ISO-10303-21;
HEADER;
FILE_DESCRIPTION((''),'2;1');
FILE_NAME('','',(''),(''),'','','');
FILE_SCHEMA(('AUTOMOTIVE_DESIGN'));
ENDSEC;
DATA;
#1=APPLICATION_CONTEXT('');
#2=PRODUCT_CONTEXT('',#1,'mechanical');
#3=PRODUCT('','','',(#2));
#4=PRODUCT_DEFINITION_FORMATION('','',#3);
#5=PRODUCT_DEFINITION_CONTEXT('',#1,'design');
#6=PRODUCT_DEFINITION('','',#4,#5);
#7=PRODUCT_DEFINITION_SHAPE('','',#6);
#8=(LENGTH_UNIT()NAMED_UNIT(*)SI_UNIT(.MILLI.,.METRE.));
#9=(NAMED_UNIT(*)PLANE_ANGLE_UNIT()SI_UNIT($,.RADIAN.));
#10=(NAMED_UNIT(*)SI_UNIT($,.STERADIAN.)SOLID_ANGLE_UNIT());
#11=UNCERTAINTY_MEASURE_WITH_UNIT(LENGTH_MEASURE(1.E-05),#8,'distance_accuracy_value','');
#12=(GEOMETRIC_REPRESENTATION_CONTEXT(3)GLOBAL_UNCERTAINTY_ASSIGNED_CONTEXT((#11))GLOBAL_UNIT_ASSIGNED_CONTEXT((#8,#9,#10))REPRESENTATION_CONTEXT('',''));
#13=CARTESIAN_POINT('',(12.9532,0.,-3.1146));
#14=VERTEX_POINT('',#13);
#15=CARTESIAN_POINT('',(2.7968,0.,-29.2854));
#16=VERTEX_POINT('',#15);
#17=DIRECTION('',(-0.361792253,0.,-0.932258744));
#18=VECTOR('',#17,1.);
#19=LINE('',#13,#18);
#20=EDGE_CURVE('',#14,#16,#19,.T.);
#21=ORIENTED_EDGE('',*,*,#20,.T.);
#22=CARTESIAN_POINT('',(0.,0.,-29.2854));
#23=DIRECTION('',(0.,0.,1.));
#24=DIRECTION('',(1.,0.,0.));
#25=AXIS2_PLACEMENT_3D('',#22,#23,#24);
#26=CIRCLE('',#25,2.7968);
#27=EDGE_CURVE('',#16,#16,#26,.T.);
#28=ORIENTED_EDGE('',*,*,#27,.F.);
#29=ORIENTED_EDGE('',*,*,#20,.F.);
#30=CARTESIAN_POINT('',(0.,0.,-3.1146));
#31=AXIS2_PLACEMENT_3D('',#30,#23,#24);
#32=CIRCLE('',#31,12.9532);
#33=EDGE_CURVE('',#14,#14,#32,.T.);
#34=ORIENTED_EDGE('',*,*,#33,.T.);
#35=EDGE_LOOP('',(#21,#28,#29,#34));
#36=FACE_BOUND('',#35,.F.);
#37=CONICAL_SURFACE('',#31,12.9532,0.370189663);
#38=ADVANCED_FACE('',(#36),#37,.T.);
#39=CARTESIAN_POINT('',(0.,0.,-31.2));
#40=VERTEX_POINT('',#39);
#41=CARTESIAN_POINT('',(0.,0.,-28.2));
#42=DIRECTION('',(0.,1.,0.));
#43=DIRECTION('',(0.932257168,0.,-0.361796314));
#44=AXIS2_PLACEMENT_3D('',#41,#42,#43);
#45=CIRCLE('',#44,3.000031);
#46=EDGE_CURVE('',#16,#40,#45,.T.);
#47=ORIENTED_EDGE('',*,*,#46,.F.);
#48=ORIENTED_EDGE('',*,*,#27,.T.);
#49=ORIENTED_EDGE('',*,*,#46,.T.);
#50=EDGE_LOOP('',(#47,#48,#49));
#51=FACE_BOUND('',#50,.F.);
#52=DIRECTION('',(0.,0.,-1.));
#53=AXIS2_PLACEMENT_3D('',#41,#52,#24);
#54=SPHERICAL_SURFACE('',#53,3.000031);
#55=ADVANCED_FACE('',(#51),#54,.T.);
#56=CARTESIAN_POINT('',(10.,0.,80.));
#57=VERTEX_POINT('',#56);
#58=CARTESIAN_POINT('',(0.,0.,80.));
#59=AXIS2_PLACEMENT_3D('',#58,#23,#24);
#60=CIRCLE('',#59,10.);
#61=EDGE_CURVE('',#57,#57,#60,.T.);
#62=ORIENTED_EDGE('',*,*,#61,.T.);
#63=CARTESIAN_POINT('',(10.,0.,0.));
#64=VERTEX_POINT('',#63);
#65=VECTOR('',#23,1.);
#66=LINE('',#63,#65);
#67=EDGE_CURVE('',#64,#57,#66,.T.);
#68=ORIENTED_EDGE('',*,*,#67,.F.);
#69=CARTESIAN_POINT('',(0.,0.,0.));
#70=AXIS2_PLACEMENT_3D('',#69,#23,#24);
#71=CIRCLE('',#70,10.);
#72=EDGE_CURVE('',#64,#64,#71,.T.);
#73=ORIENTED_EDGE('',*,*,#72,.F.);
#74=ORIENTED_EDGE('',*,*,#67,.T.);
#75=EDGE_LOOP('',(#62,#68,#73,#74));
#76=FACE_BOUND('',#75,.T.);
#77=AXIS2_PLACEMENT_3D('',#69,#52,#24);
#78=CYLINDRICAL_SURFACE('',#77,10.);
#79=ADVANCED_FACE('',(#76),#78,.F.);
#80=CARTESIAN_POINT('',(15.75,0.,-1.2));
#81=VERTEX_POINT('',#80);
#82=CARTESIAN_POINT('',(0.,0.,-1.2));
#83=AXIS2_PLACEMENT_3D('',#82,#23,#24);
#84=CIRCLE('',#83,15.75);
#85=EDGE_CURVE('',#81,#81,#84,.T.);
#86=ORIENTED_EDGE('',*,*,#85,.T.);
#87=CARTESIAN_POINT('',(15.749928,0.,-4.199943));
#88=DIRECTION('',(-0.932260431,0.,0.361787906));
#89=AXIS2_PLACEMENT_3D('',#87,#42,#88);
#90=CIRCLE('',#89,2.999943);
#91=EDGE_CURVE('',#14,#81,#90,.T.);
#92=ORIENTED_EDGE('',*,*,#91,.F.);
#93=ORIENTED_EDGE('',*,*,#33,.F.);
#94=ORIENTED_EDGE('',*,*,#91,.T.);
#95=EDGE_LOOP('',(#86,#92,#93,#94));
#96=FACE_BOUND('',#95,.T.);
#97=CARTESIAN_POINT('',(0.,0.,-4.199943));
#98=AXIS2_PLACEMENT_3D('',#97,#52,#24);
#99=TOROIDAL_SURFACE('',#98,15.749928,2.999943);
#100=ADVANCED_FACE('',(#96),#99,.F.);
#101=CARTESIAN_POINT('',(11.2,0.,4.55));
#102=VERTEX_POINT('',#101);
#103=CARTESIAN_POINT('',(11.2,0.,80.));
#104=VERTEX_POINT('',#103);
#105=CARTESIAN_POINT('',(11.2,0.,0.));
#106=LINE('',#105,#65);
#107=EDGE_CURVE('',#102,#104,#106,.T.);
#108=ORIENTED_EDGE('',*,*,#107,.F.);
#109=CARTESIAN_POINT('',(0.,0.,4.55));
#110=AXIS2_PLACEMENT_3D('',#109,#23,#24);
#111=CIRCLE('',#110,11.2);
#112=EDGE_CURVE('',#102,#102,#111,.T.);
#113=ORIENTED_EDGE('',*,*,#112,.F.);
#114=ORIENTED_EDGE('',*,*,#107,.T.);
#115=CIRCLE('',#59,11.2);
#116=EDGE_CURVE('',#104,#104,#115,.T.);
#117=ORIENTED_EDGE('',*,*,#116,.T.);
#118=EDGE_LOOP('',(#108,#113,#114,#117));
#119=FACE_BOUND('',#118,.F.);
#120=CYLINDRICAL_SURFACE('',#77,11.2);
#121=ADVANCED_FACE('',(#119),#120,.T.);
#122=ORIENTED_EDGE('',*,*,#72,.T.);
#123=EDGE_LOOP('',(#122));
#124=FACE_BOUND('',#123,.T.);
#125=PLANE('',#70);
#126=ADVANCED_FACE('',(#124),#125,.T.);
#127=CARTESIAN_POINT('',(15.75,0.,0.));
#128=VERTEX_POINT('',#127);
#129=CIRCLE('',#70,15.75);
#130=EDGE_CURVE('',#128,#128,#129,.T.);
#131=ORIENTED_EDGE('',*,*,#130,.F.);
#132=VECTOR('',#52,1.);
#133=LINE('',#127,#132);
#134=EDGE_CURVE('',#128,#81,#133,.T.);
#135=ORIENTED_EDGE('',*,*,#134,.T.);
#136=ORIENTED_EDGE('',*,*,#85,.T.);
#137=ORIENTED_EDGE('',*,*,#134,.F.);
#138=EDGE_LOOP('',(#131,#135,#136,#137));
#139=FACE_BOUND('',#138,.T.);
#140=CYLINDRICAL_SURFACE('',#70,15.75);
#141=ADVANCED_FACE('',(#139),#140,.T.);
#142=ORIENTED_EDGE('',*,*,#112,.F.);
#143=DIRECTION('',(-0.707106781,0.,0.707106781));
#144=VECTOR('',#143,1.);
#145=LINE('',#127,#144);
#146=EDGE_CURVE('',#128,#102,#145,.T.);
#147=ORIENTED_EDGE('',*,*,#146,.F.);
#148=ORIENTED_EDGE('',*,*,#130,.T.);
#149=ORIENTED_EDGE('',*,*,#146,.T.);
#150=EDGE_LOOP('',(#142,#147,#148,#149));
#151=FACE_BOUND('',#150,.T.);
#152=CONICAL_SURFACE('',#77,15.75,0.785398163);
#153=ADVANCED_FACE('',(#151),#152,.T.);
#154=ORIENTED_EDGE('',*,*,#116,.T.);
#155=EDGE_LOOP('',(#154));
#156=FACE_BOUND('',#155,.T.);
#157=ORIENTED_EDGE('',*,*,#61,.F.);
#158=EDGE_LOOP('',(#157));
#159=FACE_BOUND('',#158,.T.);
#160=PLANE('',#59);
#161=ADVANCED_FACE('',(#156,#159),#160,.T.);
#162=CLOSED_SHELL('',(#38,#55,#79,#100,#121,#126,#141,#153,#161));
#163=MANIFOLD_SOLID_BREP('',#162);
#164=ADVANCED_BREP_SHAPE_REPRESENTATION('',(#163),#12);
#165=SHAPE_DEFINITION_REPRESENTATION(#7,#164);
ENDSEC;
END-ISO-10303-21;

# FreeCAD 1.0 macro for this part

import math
import FreeCAD as App
import Part
import Sketcher
Q = App.Units.Quantity

doc = App.newDocument("Part")
body = doc.addObject("PartDesign::Body", "Body")

# Sketch on XY plane
sketch1 = body.newObject("Sketcher::SketchObject", "Sketch")
sketch1.AttachmentSupport = (doc.getObject("XY_Plane"), [""])
sketch1.MapMode = "FlatFace"
sketch1.addGeometry(Part.Circle(App.Vector(0, 0, 0), App.Vector(0, 0, 1), 15.75), False)
sketch1.addConstraint(Sketcher.Constraint("Coincident", 0, 3, -1, 1))
sketch1.addConstraint(Sketcher.Constraint("Diameter", 0, Q("31.5 mm")))
pad1 = body.newObject("PartDesign::Pad", "Pad")
pad1.Profile = sketch1
pad1.Length = 31.2
pad1.Reversed = True

# Sketch on XY plane
sketch2 = body.newObject("Sketcher::SketchObject", "Sketch001")
sketch2.AttachmentSupport = (doc.getObject("XY_Plane"), [""])
sketch2.MapMode = "FlatFace"
sketch2.addGeometry(Part.Circle(App.Vector(0, 0, 0), App.Vector(0, 0, 1), 11.2), False)
sketch2.addGeometry(Part.Circle(App.Vector(0, 0, 0), App.Vector(0, 0, 1), 10), False)
sketch2.addConstraint(Sketcher.Constraint("Coincident", 0, 3, -1, 1))
sketch2.addConstraint(Sketcher.Constraint("Coincident", 1, 3, -1, 1))
sketch2.addConstraint(Sketcher.Constraint("Diameter", 1, Q("20 mm")))
sketch2.addConstraint(Sketcher.Constraint("Diameter", 0, Q("22.4 mm")))
pad2 = body.newObject("PartDesign::Pad", "Pad001")
pad2.Profile = sketch2
pad2.Length = 80

# Sketch on XZ plane
sketch3 = body.newObject("Sketcher::SketchObject", "Sketch002")
sketch3.AttachmentSupport = (doc.getObject("XZ_Plane"), [""])
sketch3.MapMode = "FlatFace"
sketch3.addGeometry(Part.LineSegment(App.Vector(15.75, -1.2, 0), App.Vector(15.75, -31.2, 0)), False)
sketch3.addGeometry(Part.LineSegment(App.Vector(15.75, -31.2, 0), App.Vector(0, -31.2, 0)), False)
sketch3.addGeometry(Part.ArcOfCircle(Part.Circle(App.Vector(0, -28.2, 0), App.Vector(0, 0, 1), 3.000031), math.radians(-90), math.radians(-21.210555)), False)
sketch3.addGeometry(Part.LineSegment(App.Vector(2.7968, -29.2854, 0), App.Vector(12.9532, -3.1146, 0)), False)
sketch3.addGeometry(Part.ArcOfCircle(Part.Circle(App.Vector(15.75, -4.2, 0), App.Vector(0, 0, 1), 3.000031), math.radians(90), math.radians(158.789445)), False)
sketch3.addConstraint(Sketcher.Constraint("Coincident", 0, 2, 1, 1))
sketch3.addConstraint(Sketcher.Constraint("Tangent", 1, 2, 2, 1))
sketch3.addConstraint(Sketcher.Constraint("Tangent", 2, 2, 3, 1))
sketch3.addConstraint(Sketcher.Constraint("Tangent", 3, 2, 4, 2))
sketch3.addConstraint(Sketcher.Constraint("Coincident", 4, 1, 0, 1))
sketch3.addConstraint(Sketcher.Constraint("Vertical", 0))
sketch3.addConstraint(Sketcher.Constraint("Horizontal", 1))
sketch3.addConstraint(Sketcher.Constraint("Equal", 2, 4))
sketch3.addConstraint(Sketcher.Constraint("PointOnObject", 2, 3, -2))
sketch3.addConstraint(Sketcher.Constraint("Vertical", 4, 3, 0, 2))
sketch3.addConstraint(Sketcher.Constraint("Radius", 2, Q("3 mm")))
sketch3.addConstraint(Sketcher.Constraint("DistanceY", 4, 1, -1, 1, Q("1.2 mm")))
sketch3.addConstraint(Sketcher.Constraint("DistanceY", 0, 2, 0, 1, Q("30 mm")))
sketch3.addConstraint(Sketcher.Constraint("DistanceX", 1, 2, 1, 1, Q("15.75 mm")))
groove = body.newObject("PartDesign::Groove", "Groove")
groove.Profile = sketch3
groove.ReferenceAxis = (sketch3, ["V_Axis"])
groove.Angle = 360

# Sketch on XZ plane
sketch4 = body.newObject("Sketcher::SketchObject", "Sketch003")
sketch4.AttachmentSupport = (doc.getObject("XZ_Plane"), [""])
sketch4.MapMode = "FlatFace"
sketch4.addGeometry(Part.LineSegment(App.Vector(15.75, 0, 0), App.Vector(11.2, 0, 0)), False)
sketch4.addGeometry(Part.LineSegment(App.Vector(11.2, 0, 0), App.Vector(11.2, 4.55, 0)), False)
sketch4.addGeometry(Part.LineSegment(App.Vector(11.2, 4.55, 0), App.Vector(15.75, 0, 0)), False)
sketch4.addGeometry(Part.ArcOfCircle(Part.Circle(App.Vector(0, -28.2, 0), App.Vector(0, 0, 1), 3.000031), math.radians(-90), math.radians(-21.210555)), False)
sketch4.addGeometry(Part.LineSegment(App.Vector(0, -31.2, 0), App.Vector(0, -1.2, 0)), False)
sketch4.addGeometry(Part.LineSegment(App.Vector(0, -1.2, 0), App.Vector(15.75, -1.2, 0)), False)
sketch4.addGeometry(Part.ArcOfCircle(Part.Circle(App.Vector(15.75, -4.2, 0), App.Vector(0, 0, 1), 3.000031), math.radians(90), math.radians(158.789445)), False)
sketch4.addGeometry(Part.LineSegment(App.Vector(12.9532, -3.1146, 0), App.Vector(2.7968, -29.2854, 0)), False)
sketch4.addConstraint(Sketcher.Constraint("Coincident", 0, 2, 1, 1))
sketch4.addConstraint(Sketcher.Constraint("Coincident", 1, 2, 2, 1))
sketch4.addConstraint(Sketcher.Constraint("Coincident", 2, 2, 0, 1))
sketch4.addConstraint(Sketcher.Constraint("Coincident", 3, 1, 4, 1))
sketch4.addConstraint(Sketcher.Constraint("Coincident", 4, 2, 5, 1))
sketch4.addConstraint(Sketcher.Constraint("Tangent", 5, 2, 6, 1))
sketch4.addConstraint(Sketcher.Constraint("Tangent", 6, 2, 7, 1))
sketch4.addConstraint(Sketcher.Constraint("Tangent", 7, 2, 3, 2))
sketch4.addConstraint(Sketcher.Constraint("Horizontal", 0))
sketch4.addConstraint(Sketcher.Constraint("Vertical", 1))
sketch4.addConstraint(Sketcher.Constraint("Vertical", 4))
sketch4.addConstraint(Sketcher.Constraint("Horizontal", 5))
sketch4.addConstraint(Sketcher.Constraint("Equal", 3, 6))
sketch4.addConstraint(Sketcher.Constraint("PointOnObject", 3, 3, -2))
sketch4.addConstraint(Sketcher.Constraint("PointOnObject", 0, 2, -1))
sketch4.addConstraint(Sketcher.Constraint("PointOnObject", 3, 1, -2))
sketch4.addConstraint(Sketcher.Constraint("Vertical", 6, 3, 2, 2))
sketch4.addConstraint(Sketcher.Constraint("Equal", 0, 1))
sketch4.addConstraint(Sketcher.Constraint("Radius", 3, Q("3 mm")))
sketch4.addConstraint(Sketcher.Constraint("DistanceY", 4, 2, -1, 1, Q("1.2 mm")))
sketch4.addConstraint(Sketcher.Constraint("DistanceY", 4, 1, 4, 2, Q("30 mm")))
sketch4.addConstraint(Sketcher.Constraint("DistanceX", 0, 2, 0, 1, Q("4.55 mm")))
sketch4.addConstraint(Sketcher.Constraint("DistanceX", 5, 1, 5, 2, Q("15.75 mm")))
revolution = body.newObject("PartDesign::Revolution", "Revolution")
revolution.Profile = sketch4
revolution.ReferenceAxis = (sketch4, ["V_Axis"])
revolution.Angle = 360

doc.recompute()
